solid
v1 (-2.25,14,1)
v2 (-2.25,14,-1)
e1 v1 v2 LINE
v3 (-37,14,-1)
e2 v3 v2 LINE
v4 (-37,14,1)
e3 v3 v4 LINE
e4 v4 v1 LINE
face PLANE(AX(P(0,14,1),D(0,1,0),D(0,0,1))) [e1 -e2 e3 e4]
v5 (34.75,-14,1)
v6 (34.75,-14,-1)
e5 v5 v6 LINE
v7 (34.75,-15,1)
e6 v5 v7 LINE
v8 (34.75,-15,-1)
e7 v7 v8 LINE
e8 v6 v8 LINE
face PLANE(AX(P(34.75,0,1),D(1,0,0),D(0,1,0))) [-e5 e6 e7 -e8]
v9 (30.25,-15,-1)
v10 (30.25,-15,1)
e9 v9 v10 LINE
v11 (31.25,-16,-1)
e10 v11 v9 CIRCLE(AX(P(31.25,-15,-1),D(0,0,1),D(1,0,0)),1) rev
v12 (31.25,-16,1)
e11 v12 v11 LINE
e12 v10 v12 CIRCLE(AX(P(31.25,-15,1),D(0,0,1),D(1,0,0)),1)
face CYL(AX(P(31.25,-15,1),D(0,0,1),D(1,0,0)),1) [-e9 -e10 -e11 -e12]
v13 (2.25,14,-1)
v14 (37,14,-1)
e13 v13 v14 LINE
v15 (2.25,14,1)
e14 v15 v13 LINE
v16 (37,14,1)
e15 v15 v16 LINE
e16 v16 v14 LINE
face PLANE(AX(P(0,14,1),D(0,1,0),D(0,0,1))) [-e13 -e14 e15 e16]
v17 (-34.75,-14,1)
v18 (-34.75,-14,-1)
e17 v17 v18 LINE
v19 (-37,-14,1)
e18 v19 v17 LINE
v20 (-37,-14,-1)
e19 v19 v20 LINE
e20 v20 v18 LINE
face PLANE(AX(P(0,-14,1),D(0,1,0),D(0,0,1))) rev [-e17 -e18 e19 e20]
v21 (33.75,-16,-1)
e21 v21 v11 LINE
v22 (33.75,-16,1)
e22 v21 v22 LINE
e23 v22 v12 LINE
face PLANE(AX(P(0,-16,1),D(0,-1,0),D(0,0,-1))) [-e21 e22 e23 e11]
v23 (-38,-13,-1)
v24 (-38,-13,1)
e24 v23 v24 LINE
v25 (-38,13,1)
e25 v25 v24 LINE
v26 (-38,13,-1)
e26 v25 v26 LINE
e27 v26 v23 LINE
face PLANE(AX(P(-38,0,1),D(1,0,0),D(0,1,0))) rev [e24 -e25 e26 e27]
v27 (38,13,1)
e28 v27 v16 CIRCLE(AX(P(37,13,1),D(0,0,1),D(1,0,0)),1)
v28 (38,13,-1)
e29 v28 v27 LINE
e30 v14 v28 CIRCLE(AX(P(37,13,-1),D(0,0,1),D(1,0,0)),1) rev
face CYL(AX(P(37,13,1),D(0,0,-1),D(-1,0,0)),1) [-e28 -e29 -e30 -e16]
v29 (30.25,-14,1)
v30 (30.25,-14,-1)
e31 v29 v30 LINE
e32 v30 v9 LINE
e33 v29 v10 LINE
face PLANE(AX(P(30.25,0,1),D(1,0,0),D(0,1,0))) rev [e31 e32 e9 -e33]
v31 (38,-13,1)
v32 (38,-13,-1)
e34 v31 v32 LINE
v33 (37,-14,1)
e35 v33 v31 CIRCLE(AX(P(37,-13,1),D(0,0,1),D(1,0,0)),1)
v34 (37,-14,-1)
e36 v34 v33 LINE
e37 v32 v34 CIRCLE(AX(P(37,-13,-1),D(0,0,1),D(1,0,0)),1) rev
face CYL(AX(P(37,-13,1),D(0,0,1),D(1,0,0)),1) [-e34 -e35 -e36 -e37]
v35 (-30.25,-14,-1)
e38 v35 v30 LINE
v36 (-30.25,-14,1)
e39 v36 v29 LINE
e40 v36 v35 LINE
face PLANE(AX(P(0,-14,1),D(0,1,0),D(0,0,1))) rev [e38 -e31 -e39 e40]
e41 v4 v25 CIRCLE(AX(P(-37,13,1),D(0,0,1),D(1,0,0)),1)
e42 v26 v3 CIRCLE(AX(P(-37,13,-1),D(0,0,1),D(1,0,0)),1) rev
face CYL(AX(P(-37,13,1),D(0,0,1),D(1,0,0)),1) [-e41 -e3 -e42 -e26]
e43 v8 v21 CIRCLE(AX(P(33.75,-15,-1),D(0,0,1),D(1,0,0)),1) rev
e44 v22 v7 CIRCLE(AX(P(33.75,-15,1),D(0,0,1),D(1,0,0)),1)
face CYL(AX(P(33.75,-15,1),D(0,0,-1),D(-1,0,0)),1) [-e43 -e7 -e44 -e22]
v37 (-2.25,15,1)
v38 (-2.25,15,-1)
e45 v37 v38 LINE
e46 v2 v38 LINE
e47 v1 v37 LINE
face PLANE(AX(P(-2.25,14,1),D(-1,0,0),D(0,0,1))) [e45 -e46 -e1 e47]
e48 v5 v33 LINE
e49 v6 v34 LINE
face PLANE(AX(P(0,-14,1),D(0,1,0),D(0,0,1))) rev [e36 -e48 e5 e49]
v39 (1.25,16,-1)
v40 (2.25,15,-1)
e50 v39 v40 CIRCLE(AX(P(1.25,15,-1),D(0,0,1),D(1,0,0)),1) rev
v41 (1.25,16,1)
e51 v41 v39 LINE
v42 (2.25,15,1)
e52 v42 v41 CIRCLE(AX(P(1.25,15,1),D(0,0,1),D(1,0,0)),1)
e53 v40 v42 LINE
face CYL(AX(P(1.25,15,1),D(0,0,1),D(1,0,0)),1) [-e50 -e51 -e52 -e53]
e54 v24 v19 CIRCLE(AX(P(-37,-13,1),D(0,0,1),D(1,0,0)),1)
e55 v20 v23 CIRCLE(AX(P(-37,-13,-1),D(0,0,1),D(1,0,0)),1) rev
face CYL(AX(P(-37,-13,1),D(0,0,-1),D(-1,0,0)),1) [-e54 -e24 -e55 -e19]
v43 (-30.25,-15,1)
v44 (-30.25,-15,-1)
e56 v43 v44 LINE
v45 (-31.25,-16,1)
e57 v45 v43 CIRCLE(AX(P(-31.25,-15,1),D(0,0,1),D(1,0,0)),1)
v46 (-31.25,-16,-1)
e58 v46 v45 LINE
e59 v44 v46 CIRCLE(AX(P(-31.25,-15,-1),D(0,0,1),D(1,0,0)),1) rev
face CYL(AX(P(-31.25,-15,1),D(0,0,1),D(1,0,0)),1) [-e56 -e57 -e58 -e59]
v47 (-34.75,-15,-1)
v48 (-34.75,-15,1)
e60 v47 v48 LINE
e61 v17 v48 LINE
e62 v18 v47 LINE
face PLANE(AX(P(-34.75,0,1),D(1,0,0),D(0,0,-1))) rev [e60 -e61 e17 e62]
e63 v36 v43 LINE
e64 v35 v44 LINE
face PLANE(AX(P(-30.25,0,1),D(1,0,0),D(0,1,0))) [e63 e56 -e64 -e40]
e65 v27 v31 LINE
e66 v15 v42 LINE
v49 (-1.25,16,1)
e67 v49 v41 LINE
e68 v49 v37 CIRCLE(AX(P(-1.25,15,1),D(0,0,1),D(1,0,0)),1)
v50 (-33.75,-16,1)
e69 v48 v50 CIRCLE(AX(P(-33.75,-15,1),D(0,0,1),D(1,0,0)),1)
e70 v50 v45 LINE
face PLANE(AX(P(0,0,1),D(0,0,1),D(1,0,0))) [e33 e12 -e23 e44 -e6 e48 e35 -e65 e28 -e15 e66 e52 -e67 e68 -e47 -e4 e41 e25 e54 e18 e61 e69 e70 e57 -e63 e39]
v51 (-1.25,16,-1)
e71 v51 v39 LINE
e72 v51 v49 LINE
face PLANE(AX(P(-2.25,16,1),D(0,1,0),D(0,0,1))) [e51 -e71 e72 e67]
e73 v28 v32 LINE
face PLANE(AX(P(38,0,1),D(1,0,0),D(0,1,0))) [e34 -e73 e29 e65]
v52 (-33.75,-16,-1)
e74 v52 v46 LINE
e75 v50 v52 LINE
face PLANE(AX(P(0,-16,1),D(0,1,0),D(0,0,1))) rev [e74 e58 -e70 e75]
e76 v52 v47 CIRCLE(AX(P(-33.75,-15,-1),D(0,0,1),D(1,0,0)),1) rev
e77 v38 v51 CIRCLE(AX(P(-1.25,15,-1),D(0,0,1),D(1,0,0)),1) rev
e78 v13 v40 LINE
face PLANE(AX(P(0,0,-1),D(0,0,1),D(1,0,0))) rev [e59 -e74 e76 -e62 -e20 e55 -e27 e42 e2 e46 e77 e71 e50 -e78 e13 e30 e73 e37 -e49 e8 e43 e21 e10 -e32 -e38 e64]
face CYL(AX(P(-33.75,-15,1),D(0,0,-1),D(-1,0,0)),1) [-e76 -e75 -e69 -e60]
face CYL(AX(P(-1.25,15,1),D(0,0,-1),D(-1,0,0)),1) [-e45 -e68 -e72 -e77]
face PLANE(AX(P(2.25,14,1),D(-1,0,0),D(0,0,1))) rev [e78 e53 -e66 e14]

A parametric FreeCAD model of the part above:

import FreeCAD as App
import Part
import Sketcher

V = App.Vector


def edges_at(feature, points):
    """Names of the edges that pass closest to the given points."""
    edges = feature.Shape.Edges
    near = lambda p: min(range(len(edges)), key=lambda i: edges[i].distToShape(Part.Vertex(*p))[0])
    return sorted({f"Edge{near(p) + 1}" for p in points})


def add_polygon(sketch, points):
    """Adds a closed chain of lines whose ends are joined by coincident constraints."""
    first, n = sketch.GeometryCount, len(points)
    for a, b in zip(points, points[1:] + points[:1]):
        sketch.addGeometry(Part.LineSegment(App.Vector(*a, 0), App.Vector(*b, 0)), False)
    for i in range(n):
        sketch.addConstraint(Sketcher.Constraint("Coincident", first + i, 2, first + (i + 1) % n, 1))

doc = App.newDocument("Part")
body = doc.addObject("PartDesign::Body", "Body")

sketch1 = body.newObject("Sketcher::SketchObject", "Sketch")
sketch1.AttachmentSupport = (doc.getObject("XY_Plane"), [""])
sketch1.MapMode = "FlatFace"
add_polygon(sketch1, [(-38, 14), (-38, -14), (-34.8, -14), (-34.8, -16), (-30.2, -16), (-30.2, -14), (30.2, -14), (30.2, -16), (34.8, -16), (34.8, -14), (38, -14), (38, 14), (2.2, 14), (2.2, 16), (-2.2, 16), (-2.2, 14)])
sketch1.addConstraint([
    Sketcher.Constraint("Vertical", 0),
    Sketcher.Constraint("Horizontal", 1),
    Sketcher.Constraint("Vertical", 2),
    Sketcher.Constraint("Horizontal", 3),
    Sketcher.Constraint("Vertical", 4),
    Sketcher.Constraint("Horizontal", 5),
    Sketcher.Constraint("Vertical", 6),
    Sketcher.Constraint("Horizontal", 7),
    Sketcher.Constraint("Vertical", 8),
    Sketcher.Constraint("Horizontal", 9),
    Sketcher.Constraint("Vertical", 10),
    Sketcher.Constraint("Horizontal", 11),
    Sketcher.Constraint("Vertical", 12),
    Sketcher.Constraint("Horizontal", 13),
    Sketcher.Constraint("Vertical", 14),
    Sketcher.Constraint("Horizontal", 15),
    Sketcher.Constraint("Symmetric", 0, 2, 10, 2, -1, 1),
    Sketcher.Constraint("Symmetric", 3, 2, 6, 2, -2),
    Sketcher.Constraint("Symmetric", 1, 2, 8, 2, -2),
    Sketcher.Constraint("Symmetric", 11, 2, 14, 2, -2),
    Sketcher.Constraint("Horizontal", 1, 2, 4, 2),
    Sketcher.Constraint("Equal", 7, 13),
    Sketcher.Constraint("Equal", 8, 12),
    Sketcher.Constraint("DistanceY", 0, 2, 0, 1, 28.0),
    Sketcher.Constraint("DistanceY", 2, 2, 2, 1, 2.0),
    Sketcher.Constraint("DistanceX", 3, 1, 3, 2, 4.5),
    Sketcher.Constraint("DistanceX", 5, 1, 5, 2, 60.5),
    Sketcher.Constraint("DistanceX", 0, 2, -1, 1, 38.0),
])
pad1 = body.newObject("PartDesign::Pad", "Pad")
pad1.Profile = sketch1
pad1.Length = 2
pad1.Midplane = True
doc.recompute()

fillet = body.newObject("PartDesign::Fillet", "Fillet")
fillet.Base = (pad1, edges_at(pad1, [
    (38, -14, 0),
    (34.75, -16, 0),
    (30.25, -16, 0),
    (-30.25, -16, 0),
    (-34.75, -16, 0),
    (-38, -14, 0),
    (-38, 14, 0),
    (38, 14, 0),
    (2.25, 16, 0),
    (-2.25, 16, 0),
]))
fillet.Radius = 1

doc.recompute()
